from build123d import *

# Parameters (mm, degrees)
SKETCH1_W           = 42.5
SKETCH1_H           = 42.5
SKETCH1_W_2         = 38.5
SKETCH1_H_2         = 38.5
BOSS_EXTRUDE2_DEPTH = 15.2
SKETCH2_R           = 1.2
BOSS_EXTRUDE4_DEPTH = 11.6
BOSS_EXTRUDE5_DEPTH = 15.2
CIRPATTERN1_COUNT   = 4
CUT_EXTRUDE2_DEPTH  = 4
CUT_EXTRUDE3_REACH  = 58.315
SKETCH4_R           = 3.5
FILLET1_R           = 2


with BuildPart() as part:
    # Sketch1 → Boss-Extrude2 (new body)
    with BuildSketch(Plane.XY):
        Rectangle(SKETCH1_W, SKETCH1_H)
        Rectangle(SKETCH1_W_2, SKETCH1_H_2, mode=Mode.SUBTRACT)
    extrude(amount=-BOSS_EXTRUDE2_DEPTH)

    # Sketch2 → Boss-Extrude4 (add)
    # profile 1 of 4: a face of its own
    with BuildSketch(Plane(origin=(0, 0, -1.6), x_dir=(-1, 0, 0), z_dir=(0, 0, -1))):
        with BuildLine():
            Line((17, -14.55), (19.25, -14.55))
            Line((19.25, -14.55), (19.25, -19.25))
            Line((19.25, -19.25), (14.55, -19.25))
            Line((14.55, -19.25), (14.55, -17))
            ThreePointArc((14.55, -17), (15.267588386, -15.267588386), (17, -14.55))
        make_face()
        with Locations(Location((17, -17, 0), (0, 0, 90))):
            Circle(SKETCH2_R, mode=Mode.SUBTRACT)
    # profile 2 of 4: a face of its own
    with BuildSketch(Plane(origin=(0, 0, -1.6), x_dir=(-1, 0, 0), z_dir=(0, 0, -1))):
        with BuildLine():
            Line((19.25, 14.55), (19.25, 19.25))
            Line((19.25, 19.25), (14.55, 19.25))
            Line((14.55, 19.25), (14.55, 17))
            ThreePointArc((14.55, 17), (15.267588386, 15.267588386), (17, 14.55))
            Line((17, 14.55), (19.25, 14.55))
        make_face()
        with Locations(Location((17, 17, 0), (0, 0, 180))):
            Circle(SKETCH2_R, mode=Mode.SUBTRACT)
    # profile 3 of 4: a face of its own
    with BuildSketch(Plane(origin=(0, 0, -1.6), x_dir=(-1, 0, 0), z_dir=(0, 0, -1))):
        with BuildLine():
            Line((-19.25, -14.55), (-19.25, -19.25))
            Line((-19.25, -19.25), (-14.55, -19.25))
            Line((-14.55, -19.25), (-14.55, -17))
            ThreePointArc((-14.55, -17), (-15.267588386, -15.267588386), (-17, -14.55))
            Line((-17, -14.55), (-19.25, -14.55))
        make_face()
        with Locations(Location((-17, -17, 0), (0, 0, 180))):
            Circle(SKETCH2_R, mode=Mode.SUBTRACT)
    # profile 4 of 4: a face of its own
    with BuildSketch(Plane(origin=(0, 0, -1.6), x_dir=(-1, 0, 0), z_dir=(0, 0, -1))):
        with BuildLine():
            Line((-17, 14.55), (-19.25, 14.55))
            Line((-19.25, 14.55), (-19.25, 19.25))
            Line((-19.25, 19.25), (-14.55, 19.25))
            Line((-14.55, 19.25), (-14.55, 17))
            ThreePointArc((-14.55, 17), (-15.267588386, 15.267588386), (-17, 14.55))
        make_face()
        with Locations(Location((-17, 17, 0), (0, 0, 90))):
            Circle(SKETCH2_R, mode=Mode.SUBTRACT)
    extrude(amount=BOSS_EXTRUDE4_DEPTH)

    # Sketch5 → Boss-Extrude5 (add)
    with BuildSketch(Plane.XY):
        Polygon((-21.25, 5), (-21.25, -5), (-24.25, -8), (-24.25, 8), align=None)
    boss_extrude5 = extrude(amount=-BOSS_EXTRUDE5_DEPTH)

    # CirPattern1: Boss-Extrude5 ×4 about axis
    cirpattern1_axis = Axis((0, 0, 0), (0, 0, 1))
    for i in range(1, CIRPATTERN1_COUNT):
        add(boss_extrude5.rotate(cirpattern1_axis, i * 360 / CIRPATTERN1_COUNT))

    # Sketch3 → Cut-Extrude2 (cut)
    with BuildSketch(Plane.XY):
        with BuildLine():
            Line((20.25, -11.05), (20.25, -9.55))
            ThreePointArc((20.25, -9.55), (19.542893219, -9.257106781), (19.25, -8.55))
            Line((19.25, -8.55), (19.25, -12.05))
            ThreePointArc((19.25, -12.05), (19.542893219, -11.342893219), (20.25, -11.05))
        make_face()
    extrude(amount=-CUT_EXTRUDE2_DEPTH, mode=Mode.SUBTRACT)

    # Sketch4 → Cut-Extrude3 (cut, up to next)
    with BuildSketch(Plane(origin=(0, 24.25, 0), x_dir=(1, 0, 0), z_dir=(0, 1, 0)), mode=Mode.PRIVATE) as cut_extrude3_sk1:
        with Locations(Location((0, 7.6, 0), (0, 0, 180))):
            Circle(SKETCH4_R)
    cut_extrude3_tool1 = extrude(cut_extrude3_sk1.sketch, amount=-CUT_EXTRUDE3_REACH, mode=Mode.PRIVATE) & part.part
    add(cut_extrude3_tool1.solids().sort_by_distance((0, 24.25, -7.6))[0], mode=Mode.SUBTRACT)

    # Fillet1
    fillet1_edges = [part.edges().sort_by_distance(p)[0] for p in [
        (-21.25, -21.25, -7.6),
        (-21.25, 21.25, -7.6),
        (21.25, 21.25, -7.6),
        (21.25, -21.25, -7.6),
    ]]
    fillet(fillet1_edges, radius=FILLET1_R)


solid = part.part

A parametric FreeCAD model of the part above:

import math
import FreeCAD as App
import Part
import Sketcher
from FreeCAD import Vector


def edges_at(feature, points):
    """Names of the edges that pass closest to the given points."""
    edges = feature.Shape.Edges
    near = lambda p: min(range(len(edges)), key=lambda i: edges[i].distToShape(Part.Vertex(*p))[0])
    return sorted({f"Edge{near(p) + 1}" for p in points})

doc = App.newDocument("Part")
body = doc.addObject("PartDesign::Body", "Body")

sketch1 = body.newObject("Sketcher::SketchObject", "Sketch")
sketch1.AttachmentSupport = (doc.getObject("XY_Plane"), [""])
sketch1.MapMode = "FlatFace"
sketch1.addGeometry([
    Part.LineSegment(Vector(-21, 21, 0), Vector(-21, -21, 0)),
    Part.LineSegment(Vector(-21, -21, 0), Vector(21, -21, 0)),
    Part.LineSegment(Vector(21, -21, 0), Vector(21, 21, 0)),
    Part.LineSegment(Vector(21, 21, 0), Vector(-21, 21, 0)),
    Part.LineSegment(Vector(19, -19, 0), Vector(-19, -19, 0)),
    Part.LineSegment(Vector(-19, -19, 0), Vector(-19, 19, 0)),
    Part.LineSegment(Vector(-19, 19, 0), Vector(19, 19, 0)),
    Part.LineSegment(Vector(19, 19, 0), Vector(19, -19, 0)),
], False)
sketch1.addConstraint([
    Sketcher.Constraint("Coincident", 0, 2, 1, 1),
    Sketcher.Constraint("Coincident", 1, 2, 2, 1),
    Sketcher.Constraint("Coincident", 2, 2, 3, 1),
    Sketcher.Constraint("Coincident", 3, 2, 0, 1),
    Sketcher.Constraint("Coincident", 4, 2, 5, 1),
    Sketcher.Constraint("Coincident", 5, 2, 6, 1),
    Sketcher.Constraint("Coincident", 6, 2, 7, 1),
    Sketcher.Constraint("Coincident", 7, 2, 4, 1),
    Sketcher.Constraint("Vertical", 0),
    Sketcher.Constraint("Horizontal", 1),
    Sketcher.Constraint("Vertical", 2),
    Sketcher.Constraint("Horizontal", 3),
    Sketcher.Constraint("Horizontal", 4),
    Sketcher.Constraint("Vertical", 5),
    Sketcher.Constraint("Horizontal", 6),
    Sketcher.Constraint("Vertical", 7),
    Sketcher.Constraint("Symmetric", 0, 2, 2, 2, -1, 1),
    Sketcher.Constraint("Symmetric", 4, 2, 6, 2, -1, 1),
    Sketcher.Constraint("Equal", 3, 0),
    Sketcher.Constraint("Equal", 6, 5),
    Sketcher.Constraint("DistanceX", 1, 1, 1, 2, 42.5),
    Sketcher.Constraint("DistanceX", 4, 2, 4, 1, 38.5),
])
pad1 = body.newObject("PartDesign::Pad", "Pad")
pad1.Profile = sketch1
pad1.Length = 15.2
pad1.Reversed = True

sketch2 = body.newObject("Sketcher::SketchObject", "Sketch001")
sketch2.AttachmentSupport = (doc.getObject("XY_Plane"), [""])
sketch2.MapMode = "FlatFace"
sketch2.AttachmentOffset = App.Placement(Vector(0, 0, -1.6), App.Rotation())
sketch2.addGeometry([
    Part.LineSegment(Vector(-19.2, -14.6, 0), Vector(-17, -14.6, 0)),
    Part.ArcOfCircle(Part.Circle(Vector(-17, -17, 0), Vector(0, 0, 1), 2.5), math.radians(0), math.radians(90)),
    Part.LineSegment(Vector(-14.6, -17, 0), Vector(-14.6, -19.2, 0)),
    Part.LineSegment(Vector(-14.6, -19.2, 0), Vector(-19.2, -19.2, 0)),
    Part.LineSegment(Vector(-19.2, -19.2, 0), Vector(-19.2, -14.6, 0)),
    Part.Circle(Vector(-17, -17, 0), Vector(0, 0, 1), 1.2),
    Part.LineSegment(Vector(-19.2, 14.6, 0), Vector(-19.2, 19.2, 0)),
    Part.LineSegment(Vector(-19.2, 19.2, 0), Vector(-14.6, 19.2, 0)),
    Part.LineSegment(Vector(-14.6, 19.2, 0), Vector(-14.6, 17, 0)),
    Part.ArcOfCircle(Part.Circle(Vector(-17, 17, 0), Vector(0, 0, 1), 2.5), math.radians(-90), math.radians(0)),
    Part.LineSegment(Vector(-17, 14.6, 0), Vector(-19.2, 14.6, 0)),
    Part.Circle(Vector(-17, 17, 0), Vector(0, 0, 1), 1.2),
    Part.LineSegment(Vector(19.2, -14.6, 0), Vector(19.2, -19.2, 0)),
    Part.LineSegment(Vector(19.2, -19.2, 0), Vector(14.6, -19.2, 0)),
    Part.LineSegment(Vector(14.6, -19.2, 0), Vector(14.6, -17, 0)),
    Part.ArcOfCircle(Part.Circle(Vector(17, -17, 0), Vector(0, 0, 1), 2.5), math.radians(90), math.radians(180)),
    Part.LineSegment(Vector(17, -14.6, 0), Vector(19.2, -14.6, 0)),
    Part.Circle(Vector(17, -17, 0), Vector(0, 0, 1), 1.2),
    Part.LineSegment(Vector(19.2, 14.6, 0), Vector(17, 14.6, 0)),
    Part.ArcOfCircle(Part.Circle(Vector(17, 17, 0), Vector(0, 0, 1), 2.5), math.radians(180), math.radians(270)),
    Part.LineSegment(Vector(14.6, 17, 0), Vector(14.6, 19.2, 0)),
    Part.LineSegment(Vector(14.6, 19.2, 0), Vector(19.2, 19.2, 0)),
    Part.LineSegment(Vector(19.2, 19.2, 0), Vector(19.2, 14.6, 0)),
    Part.Circle(Vector(17, 17, 0), Vector(0, 0, 1), 1.2),
], False)
sketch2.addConstraint([
    Sketcher.Constraint("Tangent", 0, 2, 1, 2),
    Sketcher.Constraint("Tangent", 1, 1, 2, 1),
    Sketcher.Constraint("Coincident", 2, 2, 3, 1),
    Sketcher.Constraint("Coincident", 3, 2, 4, 1),
    Sketcher.Constraint("Coincident", 4, 2, 0, 1),
    Sketcher.Constraint("Coincident", 6, 2, 7, 1),
    Sketcher.Constraint("Coincident", 7, 2, 8, 1),
    Sketcher.Constraint("Tangent", 8, 2, 9, 2),
    Sketcher.Constraint("Tangent", 9, 1, 10, 1),
    Sketcher.Constraint("Coincident", 10, 2, 6, 1),
    Sketcher.Constraint("Coincident", 12, 2, 13, 1),
    Sketcher.Constraint("Coincident", 13, 2, 14, 1),
    Sketcher.Constraint("Tangent", 14, 2, 15, 2),
    Sketcher.Constraint("Tangent", 15, 1, 16, 1),
    Sketcher.Constraint("Coincident", 16, 2, 12, 1),
    Sketcher.Constraint("Tangent", 18, 2, 19, 2),
    Sketcher.Constraint("Tangent", 19, 1, 20, 1),
    Sketcher.Constraint("Coincident", 20, 2, 21, 1),
    Sketcher.Constraint("Coincident", 21, 2, 22, 1),
    Sketcher.Constraint("Coincident", 22, 2, 18, 1),
    Sketcher.Constraint("Horizontal", 0),
    Sketcher.Constraint("Vertical", 2),
    Sketcher.Constraint("Horizontal", 3),
    Sketcher.Constraint("Vertical", 4),
    Sketcher.Constraint("Vertical", 6),
    Sketcher.Constraint("Horizontal", 7),
    Sketcher.Constraint("Vertical", 8),
    Sketcher.Constraint("Horizontal", 10),
    Sketcher.Constraint("Vertical", 12),
    Sketcher.Constraint("Horizontal", 13),
    Sketcher.Constraint("Vertical", 14),
    Sketcher.Constraint("Horizontal", 16),
    Sketcher.Constraint("Horizontal", 18),
    Sketcher.Constraint("Vertical", 20),
    Sketcher.Constraint("Horizontal", 21),
    Sketcher.Constraint("Vertical", 22),
    Sketcher.Constraint("Coincident", 5, 3, 1, 3),
    Sketcher.Constraint("Coincident", 11, 3, 9, 3),
    Sketcher.Constraint("Coincident", 17, 3, 15, 3),
    Sketcher.Constraint("Coincident", 23, 3, 19, 3),
    Sketcher.Constraint("Equal", 1, 9),
    Sketcher.Constraint("Equal", 5, 11),
    Sketcher.Constraint("Equal", 9, 15),
    Sketcher.Constraint("Equal", 11, 17),
    Sketcher.Constraint("Equal", 15, 19),
    Sketcher.Constraint("Equal", 17, 23),
    Sketcher.Constraint("Symmetric", 9, 3, 15, 3, -1, 1),
    Sketcher.Constraint("Symmetric", 1, 3, 19, 3, -1, 1),
    Sketcher.Constraint("Symmetric", 6, 2, 12, 2, -1, 1),
    Sketcher.Constraint("Symmetric", 3, 2, 21, 2, -1, 1),
    Sketcher.Constraint("Symmetric", 1, 3, 15, 3, -2),
    Sketcher.Constraint("Symmetric", 3, 2, 12, 2, -2),
    Sketcher.Constraint("Equal", 18, 2),
    Sketcher.Constraint("Diameter", 5, 2.4),
    Sketcher.Constraint("Radius", 1, 2.45),
    Sketcher.Constraint("DistanceX", 3, 2, 3, 1, 4.7),
    Sketcher.Constraint("DistanceX", 1, 3, -1, 1, 17.0),
    Sketcher.Constraint("DistanceY", 1, 3, -1, 1, 17.0),
])
pad2 = body.newObject("PartDesign::Pad", "Pad001")
pad2.Profile = sketch2
pad2.Length = 11.6
pad2.Reversed = True

sketch3 = body.newObject("Sketcher::SketchObject", "Sketch002")
sketch3.AttachmentSupport = (doc.getObject("XY_Plane"), [""])
sketch3.MapMode = "FlatFace"
sketch3.addGeometry([
    Part.LineSegment(Vector(-21.2, -5, 0), Vector(-21.2, 5, 0)),
    Part.LineSegment(Vector(-21.2, 5, 0), Vector(-24.2, 8, 0)),
    Part.LineSegment(Vector(-24.2, 8, 0), Vector(-24.2, -8, 0)),
    Part.LineSegment(Vector(-24.2, -8, 0), Vector(-21.2, -5, 0)),
], False)
sketch3.addConstraint([
    Sketcher.Constraint("Coincident", 0, 2, 1, 1),
    Sketcher.Constraint("Coincident", 1, 2, 2, 1),
    Sketcher.Constraint("Coincident", 2, 2, 3, 1),
    Sketcher.Constraint("Coincident", 3, 2, 0, 1),
    Sketcher.Constraint("Vertical", 0),
    Sketcher.Constraint("Vertical", 2),
    Sketcher.Constraint("Perpendicular", 1, 3),
    Sketcher.Constraint("Equal", 1, 3),
    Sketcher.Constraint("DistanceY", 0, 1, 0, 2, 10.0),
    Sketcher.Constraint("DistanceY", 2, 2, 2, 1, 16.0),
    Sketcher.Constraint("DistanceY", -1, 1, 0, 2, 5.0),
    Sketcher.Constraint("DistanceX", 0, 2, -1, 1, 21.25),
])
pad3 = body.newObject("PartDesign::Pad", "Pad002")
pad3.Profile = sketch3
pad3.Length = 15.2
pad3.Reversed = True
doc.recompute()

polarpattern = body.newObject("PartDesign::PolarPattern", "PolarPattern")
polarpattern.Originals = [pad3]
polarpattern.Axis = (doc.getObject("Z_Axis"), [""])
polarpattern.Angle = 360
polarpattern.Occurrences = 4
body.Tip = polarpattern

sketch4 = body.newObject("Sketcher::SketchObject", "Sketch003")
sketch4.AttachmentSupport = (doc.getObject("XY_Plane"), [""])
sketch4.MapMode = "FlatFace"
sketch4.addGeometry([
    Part.LineSegment(Vector(20.2, -11.1, 0), Vector(20.2, -9.6, 0)),
    Part.ArcOfCircle(Part.Circle(Vector(20.3, -8.5, 0), Vector(0, 0, 1), 1), math.radians(-180), math.radians(-90)),
    Part.LineSegment(Vector(19.2, -8.6, 0), Vector(19.2, -12.1, 0)),
    Part.ArcOfCircle(Part.Circle(Vector(20.3, -12.1, 0), Vector(0, 0, 1), 1), math.radians(90), math.radians(180)),
], False)
sketch4.addConstraint([
    Sketcher.Constraint("Coincident", 0, 2, 1, 2),
    Sketcher.Constraint("Tangent", 1, 1, 2, 1),
    Sketcher.Constraint("Tangent", 2, 2, 3, 2),
    Sketcher.Constraint("Coincident", 3, 1, 0, 1),
    Sketcher.Constraint("Vertical", 0),
    Sketcher.Constraint("Vertical", 2),
    Sketcher.Constraint("Equal", 1, 3),
    Sketcher.Constraint("Vertical", 3, 3, 0, 2),
    Sketcher.Constraint("Radius", 1, 1.0),
    Sketcher.Constraint("DistanceY", 0, 1, 0, 2, 1.5),
    Sketcher.Constraint("DistanceX", -1, 1, 1, 3, 20.25),
    Sketcher.Constraint("DistanceY", 1, 3, -1, 1, 8.55),
])
pocket1 = body.newObject("PartDesign::Pocket", "Pocket")
pocket1.Profile = sketch4
pocket1.Length = 4

sketch5 = body.newObject("Sketcher::SketchObject", "Sketch004")
sketch5.AttachmentSupport = (doc.getObject("XZ_Plane"), [""])
sketch5.MapMode = "FlatFace"
sketch5.AttachmentOffset = App.Placement(Vector(0, 0, -24.25), App.Rotation())
sketch5.addGeometry(Part.Circle(Vector(0, -7.6, 0), Vector(0, 0, 1), 3.5), False)
sketch5.addConstraint([
    Sketcher.Constraint("PointOnObject", 0, 3, -2),
    Sketcher.Constraint("Diameter", 0, 7.0),
    Sketcher.Constraint("DistanceY", 0, 3, -1, 1, 7.6),
])
pocket2 = body.newObject("PartDesign::Pocket", "Pocket001")
pocket2.Profile = sketch5
pocket2.Type = "UpToFirst"
pocket2.Reversed = True
doc.recompute()

fillet = body.newObject("PartDesign::Fillet", "Fillet")
fillet.Base = (pocket2, edges_at(pocket2, [
    (-21.25, -21.25, -7.6),
    (-21.25, 21.25, -7.6),
    (21.25, 21.25, -7.6),
    (21.25, -21.25, -7.6),
]))
fillet.Radius = 2

doc.recompute()
